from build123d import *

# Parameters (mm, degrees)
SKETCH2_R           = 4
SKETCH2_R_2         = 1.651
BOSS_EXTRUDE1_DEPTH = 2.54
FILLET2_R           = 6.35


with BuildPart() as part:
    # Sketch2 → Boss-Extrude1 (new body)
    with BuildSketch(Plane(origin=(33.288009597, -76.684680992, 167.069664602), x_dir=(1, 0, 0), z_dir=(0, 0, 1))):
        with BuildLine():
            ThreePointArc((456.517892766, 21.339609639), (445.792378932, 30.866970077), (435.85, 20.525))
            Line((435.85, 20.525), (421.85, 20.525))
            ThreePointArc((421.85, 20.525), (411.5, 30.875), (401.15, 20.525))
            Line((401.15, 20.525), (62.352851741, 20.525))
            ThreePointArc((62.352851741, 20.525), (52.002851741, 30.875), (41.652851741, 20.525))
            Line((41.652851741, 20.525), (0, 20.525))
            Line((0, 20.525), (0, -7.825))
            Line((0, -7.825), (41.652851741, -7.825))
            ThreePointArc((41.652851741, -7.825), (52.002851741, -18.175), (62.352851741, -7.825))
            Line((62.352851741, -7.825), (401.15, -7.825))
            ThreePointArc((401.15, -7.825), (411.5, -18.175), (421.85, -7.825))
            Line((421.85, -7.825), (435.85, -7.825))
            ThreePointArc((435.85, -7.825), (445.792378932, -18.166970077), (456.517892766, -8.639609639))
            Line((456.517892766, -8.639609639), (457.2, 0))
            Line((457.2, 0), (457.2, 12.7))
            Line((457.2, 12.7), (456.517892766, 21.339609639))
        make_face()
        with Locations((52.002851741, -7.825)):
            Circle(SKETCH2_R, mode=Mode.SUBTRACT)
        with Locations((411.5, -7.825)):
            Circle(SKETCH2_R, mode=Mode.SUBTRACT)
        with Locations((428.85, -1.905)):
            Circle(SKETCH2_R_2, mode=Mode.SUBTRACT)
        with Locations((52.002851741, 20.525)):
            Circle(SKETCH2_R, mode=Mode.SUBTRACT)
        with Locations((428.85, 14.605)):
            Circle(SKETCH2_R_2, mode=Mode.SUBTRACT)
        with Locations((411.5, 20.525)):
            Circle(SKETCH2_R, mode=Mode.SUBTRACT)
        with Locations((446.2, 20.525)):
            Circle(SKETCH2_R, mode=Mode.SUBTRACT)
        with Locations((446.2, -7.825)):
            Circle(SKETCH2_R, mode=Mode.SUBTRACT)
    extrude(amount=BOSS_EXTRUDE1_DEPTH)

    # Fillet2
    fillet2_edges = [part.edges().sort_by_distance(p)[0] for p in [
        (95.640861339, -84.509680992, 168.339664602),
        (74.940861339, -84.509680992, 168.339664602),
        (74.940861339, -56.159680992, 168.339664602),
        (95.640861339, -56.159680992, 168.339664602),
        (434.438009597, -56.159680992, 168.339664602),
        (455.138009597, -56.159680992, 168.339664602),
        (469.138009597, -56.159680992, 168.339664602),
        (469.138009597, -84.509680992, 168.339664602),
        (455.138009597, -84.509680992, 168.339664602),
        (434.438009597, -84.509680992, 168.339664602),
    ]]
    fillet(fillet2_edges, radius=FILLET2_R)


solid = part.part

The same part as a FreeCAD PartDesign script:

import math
import FreeCAD as App
import Part
import Sketcher
Q = App.Units.Quantity


def edges_at(feature, points):
    """Names of the edges that pass closest to the given points."""
    edges = feature.Shape.Edges
    near = lambda p: min(range(len(edges)), key=lambda i: edges[i].distToShape(Part.Vertex(*p))[0])
    return sorted({f"Edge{near(p) + 1}" for p in points})

doc = App.newDocument("Part")
body = doc.addObject("PartDesign::Body", "Body")

sketch1 = body.newObject("Sketcher::SketchObject", "Sketch")
sketch1.AttachmentSupport = (doc.getObject("XY_Plane"), [""])
sketch1.MapMode = "FlatFace"
sketch1.AttachmentOffset = App.Placement(App.Vector(0, 0, 167.069665), App.Rotation())
sketch1.addGeometry(Part.ArcOfCircle(Part.Circle(App.Vector(479.5, -56.2, 0), App.Vector(0, 0, 1), 10.3), math.radians(5), math.radians(180)), False)
sketch1.addGeometry(Part.LineSegment(App.Vector(469.1, -56.2, 0), App.Vector(455.1, -56.2, 0)), False)
sketch1.addGeometry(Part.ArcOfCircle(Part.Circle(App.Vector(444.8, -56.2, 0), App.Vector(0, 0, 1), 10.3), math.radians(0), math.radians(180)), False)
sketch1.addGeometry(Part.LineSegment(App.Vector(434.4, -56.2, 0), App.Vector(95.6, -56.2, 0)), False)
sketch1.addGeometry(Part.ArcOfCircle(Part.Circle(App.Vector(85.3, -56.2, 0), App.Vector(0, 0, 1), 10.3), math.radians(0), math.radians(180)), False)
sketch1.addGeometry(Part.LineSegment(App.Vector(74.9, -56.2, 0), App.Vector(33.3, -56.2, 0)), False)
sketch1.addGeometry(Part.LineSegment(App.Vector(33.3, -56.2, 0), App.Vector(33.3, -84.5, 0)), False)
sketch1.addGeometry(Part.LineSegment(App.Vector(33.3, -84.5, 0), App.Vector(74.9, -84.5, 0)), False)
sketch1.addGeometry(Part.ArcOfCircle(Part.Circle(App.Vector(85.3, -84.5, 0), App.Vector(0, 0, 1), 10.3), math.radians(180), math.radians(360)), False)
sketch1.addGeometry(Part.LineSegment(App.Vector(95.6, -84.5, 0), App.Vector(434.4, -84.5, 0)), False)
sketch1.addGeometry(Part.ArcOfCircle(Part.Circle(App.Vector(444.8, -84.5, 0), App.Vector(0, 0, 1), 10.3), math.radians(180), math.radians(360)), False)
sketch1.addGeometry(Part.LineSegment(App.Vector(455.1, -84.5, 0), App.Vector(469.1, -84.5, 0)), False)
sketch1.addGeometry(Part.ArcOfCircle(Part.Circle(App.Vector(479.5, -84.5, 0), App.Vector(0, 0, 1), 10.3), math.radians(180), math.radians(355)), False)
sketch1.addGeometry(Part.LineSegment(App.Vector(489.8, -85.3, 0), App.Vector(490.5, -76.7, 0)), False)
sketch1.addGeometry(Part.LineSegment(App.Vector(490.5, -76.7, 0), App.Vector(490.5, -64, 0)), False)
sketch1.addGeometry(Part.LineSegment(App.Vector(490.5, -64, 0), App.Vector(489.8, -55.3, 0)), False)
sketch1.addGeometry(Part.Circle(App.Vector(85.3, -84.5, 0), App.Vector(0, 0, 1), 4), False)
sketch1.addGeometry(Part.Circle(App.Vector(444.8, -84.5, 0), App.Vector(0, 0, 1), 4), False)
sketch1.addGeometry(Part.Circle(App.Vector(479.5, -84.5, 0), App.Vector(0, 0, 1), 4), False)
sketch1.addGeometry(Part.Circle(App.Vector(462.1, -78.6, 0), App.Vector(0, 0, 1), 1.7), False)
sketch1.addGeometry(Part.Circle(App.Vector(85.3, -56.2, 0), App.Vector(0, 0, 1), 4), False)
sketch1.addGeometry(Part.Circle(App.Vector(462.1, -62.1, 0), App.Vector(0, 0, 1), 1.7), False)
sketch1.addGeometry(Part.Circle(App.Vector(444.8, -56.2, 0), App.Vector(0, 0, 1), 4), False)
sketch1.addGeometry(Part.Circle(App.Vector(479.5, -56.2, 0), App.Vector(0, 0, 1), 4), False)
sketch1.addConstraint(Sketcher.Constraint("Coincident", 0, 2, 1, 1))
sketch1.addConstraint(Sketcher.Constraint("Coincident", 1, 2, 2, 1))
sketch1.addConstraint(Sketcher.Constraint("Coincident", 2, 2, 3, 1))
sketch1.addConstraint(Sketcher.Constraint("Coincident", 3, 2, 4, 1))
sketch1.addConstraint(Sketcher.Constraint("Coincident", 4, 2, 5, 1))
sketch1.addConstraint(Sketcher.Constraint("Coincident", 5, 2, 6, 1))
sketch1.addConstraint(Sketcher.Constraint("Coincident", 6, 2, 7, 1))
sketch1.addConstraint(Sketcher.Constraint("Coincident", 7, 2, 8, 1))
sketch1.addConstraint(Sketcher.Constraint("Coincident", 8, 2, 9, 1))
sketch1.addConstraint(Sketcher.Constraint("Coincident", 9, 2, 10, 1))
sketch1.addConstraint(Sketcher.Constraint("Coincident", 10, 2, 11, 1))
sketch1.addConstraint(Sketcher.Constraint("Coincident", 11, 2, 12, 1))
sketch1.addConstraint(Sketcher.Constraint("Tangent", 12, 2, 13, 1))
sketch1.addConstraint(Sketcher.Constraint("Coincident", 13, 2, 14, 1))
sketch1.addConstraint(Sketcher.Constraint("Coincident", 14, 2, 15, 1))
sketch1.addConstraint(Sketcher.Constraint("Tangent", 15, 2, 0, 1))
sketch1.addConstraint(Sketcher.Constraint("Horizontal", 1))
sketch1.addConstraint(Sketcher.Constraint("Horizontal", 3))
sketch1.addConstraint(Sketcher.Constraint("Horizontal", 5))
sketch1.addConstraint(Sketcher.Constraint("Vertical", 6))
sketch1.addConstraint(Sketcher.Constraint("Horizontal", 7))
sketch1.addConstraint(Sketcher.Constraint("Horizontal", 9))
sketch1.addConstraint(Sketcher.Constraint("Horizontal", 11))
sketch1.addConstraint(Sketcher.Constraint("Vertical", 14))
sketch1.addConstraint(Sketcher.Constraint("Coincident", 16, 3, 8, 3))
sketch1.addConstraint(Sketcher.Constraint("Coincident", 17, 3, 10, 3))
sketch1.addConstraint(Sketcher.Constraint("Coincident", 18, 3, 12, 3))
sketch1.addConstraint(Sketcher.Constraint("Coincident", 20, 3, 4, 3))
sketch1.addConstraint(Sketcher.Constraint("Coincident", 22, 3, 2, 3))
sketch1.addConstraint(Sketcher.Constraint("Coincident", 23, 3, 0, 3))
sketch1.addConstraint(Sketcher.Constraint("Equal", 0, 2))
sketch1.addConstraint(Sketcher.Constraint("Equal", 2, 4))
sketch1.addConstraint(Sketcher.Constraint("Equal", 4, 8))
sketch1.addConstraint(Sketcher.Constraint("Equal", 8, 10))
sketch1.addConstraint(Sketcher.Constraint("Equal", 10, 12))
sketch1.addConstraint(Sketcher.Constraint("Equal", 16, 17))
sketch1.addConstraint(Sketcher.Constraint("Equal", 17, 18))
sketch1.addConstraint(Sketcher.Constraint("Equal", 18, 20))
sketch1.addConstraint(Sketcher.Constraint("Equal", 19, 21))
sketch1.addConstraint(Sketcher.Constraint("Equal", 20, 22))
sketch1.addConstraint(Sketcher.Constraint("Equal", 22, 23))
sketch1.addConstraint(Sketcher.Constraint("Horizontal", 0, 3, 2, 3))
sketch1.addConstraint(Sketcher.Constraint("Horizontal", 2, 3, 4, 3))
sketch1.addConstraint(Sketcher.Constraint("Horizontal", 8, 3, 10, 3))
sketch1.addConstraint(Sketcher.Constraint("Horizontal", 10, 3, 12, 3))
sketch1.addConstraint(Sketcher.Constraint("Horizontal", 23, 3, 0, 2))
sketch1.addConstraint(Sketcher.Constraint("Horizontal", 1, 2, 2, 2))
sketch1.addConstraint(Sketcher.Constraint("Horizontal", 3, 2, 4, 2))
sketch1.addConstraint(Sketcher.Constraint("Horizontal", 18, 3, 6, 2))
sketch1.addConstraint(Sketcher.Constraint("Horizontal", 7, 2, 8, 2))
sketch1.addConstraint(Sketcher.Constraint("Horizontal", 9, 2, 10, 2))
sketch1.addConstraint(Sketcher.Constraint("Vertical", 4, 3, 8, 3))
sketch1.addConstraint(Sketcher.Constraint("Vertical", 2, 3, 10, 3))
sketch1.addConstraint(Sketcher.Constraint("Vertical", 0, 3, 12, 3))
sketch1.addConstraint(Sketcher.Constraint("Vertical", 19, 3, 21, 3))
sketch1.addConstraint(Sketcher.Constraint("Vertical", 12, 2, 15, 2))
sketch1.addConstraint(Sketcher.Constraint("Diameter", 19, Q("0.13 in")))
sketch1.addConstraint(Sketcher.Constraint("DistanceY", 14, 1, 14, 2, Q("0.5 in")))
sketch1.addConstraint(Sketcher.Constraint("Diameter", 16, Q("8 mm")))
sketch1.addConstraint(Sketcher.Constraint("Radius", 0, Q("10.35 mm")))
sketch1.addConstraint(Sketcher.Constraint("DistanceY", 19, 3, 21, 3, Q("0.65 in")))
sketch1.addConstraint(Sketcher.Constraint("DistanceX", 1, 2, 1, 1, Q("14 mm")))
sketch1.addConstraint(Sketcher.Constraint("DistanceY", 6, 2, 6, 1, Q("28.35 mm")))
sketch1.addConstraint(Sketcher.Constraint("DistanceX", 3, 2, 3, 1, Q("338.797148 mm")))
sketch1.addConstraint(Sketcher.Constraint("DistanceX", 5, 2, 5, 1, Q("41.652852 mm")))
sketch1.addConstraint(Sketcher.Constraint("DistanceX", 19, 3, 18, 3, Q("17.35 mm")))
sketch1.addConstraint(Sketcher.Constraint("DistanceY", 18, 3, 19, 3, Q("5.92 mm")))
sketch1.addConstraint(Sketcher.Constraint("DistanceX", 18, 3, 13, 2, Q("11 mm")))
sketch1.addConstraint(Sketcher.Constraint("DistanceX", -1, 1, 0, 3, Q("479.48801 mm")))
sketch1.addConstraint(Sketcher.Constraint("DistanceY", 0, 3, -1, 1, Q("56.159681 mm")))
pad1 = body.newObject("PartDesign::Pad", "Pad")
pad1.Profile = sketch1
pad1.Length = Q("0.1 in")
doc.recompute()

fillet = body.newObject("PartDesign::Fillet", "Fillet")
fillet.Base = (pad1, edges_at(pad1, [
    (95.641, -84.51, 168.34),
    (74.941, -84.51, 168.34),
    (74.941, -56.16, 168.34),
    (95.641, -56.16, 168.34),
    (434.438, -56.16, 168.34),
    (455.138, -56.16, 168.34),
    (469.138, -56.16, 168.34),
    (469.138, -84.51, 168.34),
    (455.138, -84.51, 168.34),
    (434.438, -84.51, 168.34),
]))
fillet.Radius = Q("0.25 in")

doc.recompute()
